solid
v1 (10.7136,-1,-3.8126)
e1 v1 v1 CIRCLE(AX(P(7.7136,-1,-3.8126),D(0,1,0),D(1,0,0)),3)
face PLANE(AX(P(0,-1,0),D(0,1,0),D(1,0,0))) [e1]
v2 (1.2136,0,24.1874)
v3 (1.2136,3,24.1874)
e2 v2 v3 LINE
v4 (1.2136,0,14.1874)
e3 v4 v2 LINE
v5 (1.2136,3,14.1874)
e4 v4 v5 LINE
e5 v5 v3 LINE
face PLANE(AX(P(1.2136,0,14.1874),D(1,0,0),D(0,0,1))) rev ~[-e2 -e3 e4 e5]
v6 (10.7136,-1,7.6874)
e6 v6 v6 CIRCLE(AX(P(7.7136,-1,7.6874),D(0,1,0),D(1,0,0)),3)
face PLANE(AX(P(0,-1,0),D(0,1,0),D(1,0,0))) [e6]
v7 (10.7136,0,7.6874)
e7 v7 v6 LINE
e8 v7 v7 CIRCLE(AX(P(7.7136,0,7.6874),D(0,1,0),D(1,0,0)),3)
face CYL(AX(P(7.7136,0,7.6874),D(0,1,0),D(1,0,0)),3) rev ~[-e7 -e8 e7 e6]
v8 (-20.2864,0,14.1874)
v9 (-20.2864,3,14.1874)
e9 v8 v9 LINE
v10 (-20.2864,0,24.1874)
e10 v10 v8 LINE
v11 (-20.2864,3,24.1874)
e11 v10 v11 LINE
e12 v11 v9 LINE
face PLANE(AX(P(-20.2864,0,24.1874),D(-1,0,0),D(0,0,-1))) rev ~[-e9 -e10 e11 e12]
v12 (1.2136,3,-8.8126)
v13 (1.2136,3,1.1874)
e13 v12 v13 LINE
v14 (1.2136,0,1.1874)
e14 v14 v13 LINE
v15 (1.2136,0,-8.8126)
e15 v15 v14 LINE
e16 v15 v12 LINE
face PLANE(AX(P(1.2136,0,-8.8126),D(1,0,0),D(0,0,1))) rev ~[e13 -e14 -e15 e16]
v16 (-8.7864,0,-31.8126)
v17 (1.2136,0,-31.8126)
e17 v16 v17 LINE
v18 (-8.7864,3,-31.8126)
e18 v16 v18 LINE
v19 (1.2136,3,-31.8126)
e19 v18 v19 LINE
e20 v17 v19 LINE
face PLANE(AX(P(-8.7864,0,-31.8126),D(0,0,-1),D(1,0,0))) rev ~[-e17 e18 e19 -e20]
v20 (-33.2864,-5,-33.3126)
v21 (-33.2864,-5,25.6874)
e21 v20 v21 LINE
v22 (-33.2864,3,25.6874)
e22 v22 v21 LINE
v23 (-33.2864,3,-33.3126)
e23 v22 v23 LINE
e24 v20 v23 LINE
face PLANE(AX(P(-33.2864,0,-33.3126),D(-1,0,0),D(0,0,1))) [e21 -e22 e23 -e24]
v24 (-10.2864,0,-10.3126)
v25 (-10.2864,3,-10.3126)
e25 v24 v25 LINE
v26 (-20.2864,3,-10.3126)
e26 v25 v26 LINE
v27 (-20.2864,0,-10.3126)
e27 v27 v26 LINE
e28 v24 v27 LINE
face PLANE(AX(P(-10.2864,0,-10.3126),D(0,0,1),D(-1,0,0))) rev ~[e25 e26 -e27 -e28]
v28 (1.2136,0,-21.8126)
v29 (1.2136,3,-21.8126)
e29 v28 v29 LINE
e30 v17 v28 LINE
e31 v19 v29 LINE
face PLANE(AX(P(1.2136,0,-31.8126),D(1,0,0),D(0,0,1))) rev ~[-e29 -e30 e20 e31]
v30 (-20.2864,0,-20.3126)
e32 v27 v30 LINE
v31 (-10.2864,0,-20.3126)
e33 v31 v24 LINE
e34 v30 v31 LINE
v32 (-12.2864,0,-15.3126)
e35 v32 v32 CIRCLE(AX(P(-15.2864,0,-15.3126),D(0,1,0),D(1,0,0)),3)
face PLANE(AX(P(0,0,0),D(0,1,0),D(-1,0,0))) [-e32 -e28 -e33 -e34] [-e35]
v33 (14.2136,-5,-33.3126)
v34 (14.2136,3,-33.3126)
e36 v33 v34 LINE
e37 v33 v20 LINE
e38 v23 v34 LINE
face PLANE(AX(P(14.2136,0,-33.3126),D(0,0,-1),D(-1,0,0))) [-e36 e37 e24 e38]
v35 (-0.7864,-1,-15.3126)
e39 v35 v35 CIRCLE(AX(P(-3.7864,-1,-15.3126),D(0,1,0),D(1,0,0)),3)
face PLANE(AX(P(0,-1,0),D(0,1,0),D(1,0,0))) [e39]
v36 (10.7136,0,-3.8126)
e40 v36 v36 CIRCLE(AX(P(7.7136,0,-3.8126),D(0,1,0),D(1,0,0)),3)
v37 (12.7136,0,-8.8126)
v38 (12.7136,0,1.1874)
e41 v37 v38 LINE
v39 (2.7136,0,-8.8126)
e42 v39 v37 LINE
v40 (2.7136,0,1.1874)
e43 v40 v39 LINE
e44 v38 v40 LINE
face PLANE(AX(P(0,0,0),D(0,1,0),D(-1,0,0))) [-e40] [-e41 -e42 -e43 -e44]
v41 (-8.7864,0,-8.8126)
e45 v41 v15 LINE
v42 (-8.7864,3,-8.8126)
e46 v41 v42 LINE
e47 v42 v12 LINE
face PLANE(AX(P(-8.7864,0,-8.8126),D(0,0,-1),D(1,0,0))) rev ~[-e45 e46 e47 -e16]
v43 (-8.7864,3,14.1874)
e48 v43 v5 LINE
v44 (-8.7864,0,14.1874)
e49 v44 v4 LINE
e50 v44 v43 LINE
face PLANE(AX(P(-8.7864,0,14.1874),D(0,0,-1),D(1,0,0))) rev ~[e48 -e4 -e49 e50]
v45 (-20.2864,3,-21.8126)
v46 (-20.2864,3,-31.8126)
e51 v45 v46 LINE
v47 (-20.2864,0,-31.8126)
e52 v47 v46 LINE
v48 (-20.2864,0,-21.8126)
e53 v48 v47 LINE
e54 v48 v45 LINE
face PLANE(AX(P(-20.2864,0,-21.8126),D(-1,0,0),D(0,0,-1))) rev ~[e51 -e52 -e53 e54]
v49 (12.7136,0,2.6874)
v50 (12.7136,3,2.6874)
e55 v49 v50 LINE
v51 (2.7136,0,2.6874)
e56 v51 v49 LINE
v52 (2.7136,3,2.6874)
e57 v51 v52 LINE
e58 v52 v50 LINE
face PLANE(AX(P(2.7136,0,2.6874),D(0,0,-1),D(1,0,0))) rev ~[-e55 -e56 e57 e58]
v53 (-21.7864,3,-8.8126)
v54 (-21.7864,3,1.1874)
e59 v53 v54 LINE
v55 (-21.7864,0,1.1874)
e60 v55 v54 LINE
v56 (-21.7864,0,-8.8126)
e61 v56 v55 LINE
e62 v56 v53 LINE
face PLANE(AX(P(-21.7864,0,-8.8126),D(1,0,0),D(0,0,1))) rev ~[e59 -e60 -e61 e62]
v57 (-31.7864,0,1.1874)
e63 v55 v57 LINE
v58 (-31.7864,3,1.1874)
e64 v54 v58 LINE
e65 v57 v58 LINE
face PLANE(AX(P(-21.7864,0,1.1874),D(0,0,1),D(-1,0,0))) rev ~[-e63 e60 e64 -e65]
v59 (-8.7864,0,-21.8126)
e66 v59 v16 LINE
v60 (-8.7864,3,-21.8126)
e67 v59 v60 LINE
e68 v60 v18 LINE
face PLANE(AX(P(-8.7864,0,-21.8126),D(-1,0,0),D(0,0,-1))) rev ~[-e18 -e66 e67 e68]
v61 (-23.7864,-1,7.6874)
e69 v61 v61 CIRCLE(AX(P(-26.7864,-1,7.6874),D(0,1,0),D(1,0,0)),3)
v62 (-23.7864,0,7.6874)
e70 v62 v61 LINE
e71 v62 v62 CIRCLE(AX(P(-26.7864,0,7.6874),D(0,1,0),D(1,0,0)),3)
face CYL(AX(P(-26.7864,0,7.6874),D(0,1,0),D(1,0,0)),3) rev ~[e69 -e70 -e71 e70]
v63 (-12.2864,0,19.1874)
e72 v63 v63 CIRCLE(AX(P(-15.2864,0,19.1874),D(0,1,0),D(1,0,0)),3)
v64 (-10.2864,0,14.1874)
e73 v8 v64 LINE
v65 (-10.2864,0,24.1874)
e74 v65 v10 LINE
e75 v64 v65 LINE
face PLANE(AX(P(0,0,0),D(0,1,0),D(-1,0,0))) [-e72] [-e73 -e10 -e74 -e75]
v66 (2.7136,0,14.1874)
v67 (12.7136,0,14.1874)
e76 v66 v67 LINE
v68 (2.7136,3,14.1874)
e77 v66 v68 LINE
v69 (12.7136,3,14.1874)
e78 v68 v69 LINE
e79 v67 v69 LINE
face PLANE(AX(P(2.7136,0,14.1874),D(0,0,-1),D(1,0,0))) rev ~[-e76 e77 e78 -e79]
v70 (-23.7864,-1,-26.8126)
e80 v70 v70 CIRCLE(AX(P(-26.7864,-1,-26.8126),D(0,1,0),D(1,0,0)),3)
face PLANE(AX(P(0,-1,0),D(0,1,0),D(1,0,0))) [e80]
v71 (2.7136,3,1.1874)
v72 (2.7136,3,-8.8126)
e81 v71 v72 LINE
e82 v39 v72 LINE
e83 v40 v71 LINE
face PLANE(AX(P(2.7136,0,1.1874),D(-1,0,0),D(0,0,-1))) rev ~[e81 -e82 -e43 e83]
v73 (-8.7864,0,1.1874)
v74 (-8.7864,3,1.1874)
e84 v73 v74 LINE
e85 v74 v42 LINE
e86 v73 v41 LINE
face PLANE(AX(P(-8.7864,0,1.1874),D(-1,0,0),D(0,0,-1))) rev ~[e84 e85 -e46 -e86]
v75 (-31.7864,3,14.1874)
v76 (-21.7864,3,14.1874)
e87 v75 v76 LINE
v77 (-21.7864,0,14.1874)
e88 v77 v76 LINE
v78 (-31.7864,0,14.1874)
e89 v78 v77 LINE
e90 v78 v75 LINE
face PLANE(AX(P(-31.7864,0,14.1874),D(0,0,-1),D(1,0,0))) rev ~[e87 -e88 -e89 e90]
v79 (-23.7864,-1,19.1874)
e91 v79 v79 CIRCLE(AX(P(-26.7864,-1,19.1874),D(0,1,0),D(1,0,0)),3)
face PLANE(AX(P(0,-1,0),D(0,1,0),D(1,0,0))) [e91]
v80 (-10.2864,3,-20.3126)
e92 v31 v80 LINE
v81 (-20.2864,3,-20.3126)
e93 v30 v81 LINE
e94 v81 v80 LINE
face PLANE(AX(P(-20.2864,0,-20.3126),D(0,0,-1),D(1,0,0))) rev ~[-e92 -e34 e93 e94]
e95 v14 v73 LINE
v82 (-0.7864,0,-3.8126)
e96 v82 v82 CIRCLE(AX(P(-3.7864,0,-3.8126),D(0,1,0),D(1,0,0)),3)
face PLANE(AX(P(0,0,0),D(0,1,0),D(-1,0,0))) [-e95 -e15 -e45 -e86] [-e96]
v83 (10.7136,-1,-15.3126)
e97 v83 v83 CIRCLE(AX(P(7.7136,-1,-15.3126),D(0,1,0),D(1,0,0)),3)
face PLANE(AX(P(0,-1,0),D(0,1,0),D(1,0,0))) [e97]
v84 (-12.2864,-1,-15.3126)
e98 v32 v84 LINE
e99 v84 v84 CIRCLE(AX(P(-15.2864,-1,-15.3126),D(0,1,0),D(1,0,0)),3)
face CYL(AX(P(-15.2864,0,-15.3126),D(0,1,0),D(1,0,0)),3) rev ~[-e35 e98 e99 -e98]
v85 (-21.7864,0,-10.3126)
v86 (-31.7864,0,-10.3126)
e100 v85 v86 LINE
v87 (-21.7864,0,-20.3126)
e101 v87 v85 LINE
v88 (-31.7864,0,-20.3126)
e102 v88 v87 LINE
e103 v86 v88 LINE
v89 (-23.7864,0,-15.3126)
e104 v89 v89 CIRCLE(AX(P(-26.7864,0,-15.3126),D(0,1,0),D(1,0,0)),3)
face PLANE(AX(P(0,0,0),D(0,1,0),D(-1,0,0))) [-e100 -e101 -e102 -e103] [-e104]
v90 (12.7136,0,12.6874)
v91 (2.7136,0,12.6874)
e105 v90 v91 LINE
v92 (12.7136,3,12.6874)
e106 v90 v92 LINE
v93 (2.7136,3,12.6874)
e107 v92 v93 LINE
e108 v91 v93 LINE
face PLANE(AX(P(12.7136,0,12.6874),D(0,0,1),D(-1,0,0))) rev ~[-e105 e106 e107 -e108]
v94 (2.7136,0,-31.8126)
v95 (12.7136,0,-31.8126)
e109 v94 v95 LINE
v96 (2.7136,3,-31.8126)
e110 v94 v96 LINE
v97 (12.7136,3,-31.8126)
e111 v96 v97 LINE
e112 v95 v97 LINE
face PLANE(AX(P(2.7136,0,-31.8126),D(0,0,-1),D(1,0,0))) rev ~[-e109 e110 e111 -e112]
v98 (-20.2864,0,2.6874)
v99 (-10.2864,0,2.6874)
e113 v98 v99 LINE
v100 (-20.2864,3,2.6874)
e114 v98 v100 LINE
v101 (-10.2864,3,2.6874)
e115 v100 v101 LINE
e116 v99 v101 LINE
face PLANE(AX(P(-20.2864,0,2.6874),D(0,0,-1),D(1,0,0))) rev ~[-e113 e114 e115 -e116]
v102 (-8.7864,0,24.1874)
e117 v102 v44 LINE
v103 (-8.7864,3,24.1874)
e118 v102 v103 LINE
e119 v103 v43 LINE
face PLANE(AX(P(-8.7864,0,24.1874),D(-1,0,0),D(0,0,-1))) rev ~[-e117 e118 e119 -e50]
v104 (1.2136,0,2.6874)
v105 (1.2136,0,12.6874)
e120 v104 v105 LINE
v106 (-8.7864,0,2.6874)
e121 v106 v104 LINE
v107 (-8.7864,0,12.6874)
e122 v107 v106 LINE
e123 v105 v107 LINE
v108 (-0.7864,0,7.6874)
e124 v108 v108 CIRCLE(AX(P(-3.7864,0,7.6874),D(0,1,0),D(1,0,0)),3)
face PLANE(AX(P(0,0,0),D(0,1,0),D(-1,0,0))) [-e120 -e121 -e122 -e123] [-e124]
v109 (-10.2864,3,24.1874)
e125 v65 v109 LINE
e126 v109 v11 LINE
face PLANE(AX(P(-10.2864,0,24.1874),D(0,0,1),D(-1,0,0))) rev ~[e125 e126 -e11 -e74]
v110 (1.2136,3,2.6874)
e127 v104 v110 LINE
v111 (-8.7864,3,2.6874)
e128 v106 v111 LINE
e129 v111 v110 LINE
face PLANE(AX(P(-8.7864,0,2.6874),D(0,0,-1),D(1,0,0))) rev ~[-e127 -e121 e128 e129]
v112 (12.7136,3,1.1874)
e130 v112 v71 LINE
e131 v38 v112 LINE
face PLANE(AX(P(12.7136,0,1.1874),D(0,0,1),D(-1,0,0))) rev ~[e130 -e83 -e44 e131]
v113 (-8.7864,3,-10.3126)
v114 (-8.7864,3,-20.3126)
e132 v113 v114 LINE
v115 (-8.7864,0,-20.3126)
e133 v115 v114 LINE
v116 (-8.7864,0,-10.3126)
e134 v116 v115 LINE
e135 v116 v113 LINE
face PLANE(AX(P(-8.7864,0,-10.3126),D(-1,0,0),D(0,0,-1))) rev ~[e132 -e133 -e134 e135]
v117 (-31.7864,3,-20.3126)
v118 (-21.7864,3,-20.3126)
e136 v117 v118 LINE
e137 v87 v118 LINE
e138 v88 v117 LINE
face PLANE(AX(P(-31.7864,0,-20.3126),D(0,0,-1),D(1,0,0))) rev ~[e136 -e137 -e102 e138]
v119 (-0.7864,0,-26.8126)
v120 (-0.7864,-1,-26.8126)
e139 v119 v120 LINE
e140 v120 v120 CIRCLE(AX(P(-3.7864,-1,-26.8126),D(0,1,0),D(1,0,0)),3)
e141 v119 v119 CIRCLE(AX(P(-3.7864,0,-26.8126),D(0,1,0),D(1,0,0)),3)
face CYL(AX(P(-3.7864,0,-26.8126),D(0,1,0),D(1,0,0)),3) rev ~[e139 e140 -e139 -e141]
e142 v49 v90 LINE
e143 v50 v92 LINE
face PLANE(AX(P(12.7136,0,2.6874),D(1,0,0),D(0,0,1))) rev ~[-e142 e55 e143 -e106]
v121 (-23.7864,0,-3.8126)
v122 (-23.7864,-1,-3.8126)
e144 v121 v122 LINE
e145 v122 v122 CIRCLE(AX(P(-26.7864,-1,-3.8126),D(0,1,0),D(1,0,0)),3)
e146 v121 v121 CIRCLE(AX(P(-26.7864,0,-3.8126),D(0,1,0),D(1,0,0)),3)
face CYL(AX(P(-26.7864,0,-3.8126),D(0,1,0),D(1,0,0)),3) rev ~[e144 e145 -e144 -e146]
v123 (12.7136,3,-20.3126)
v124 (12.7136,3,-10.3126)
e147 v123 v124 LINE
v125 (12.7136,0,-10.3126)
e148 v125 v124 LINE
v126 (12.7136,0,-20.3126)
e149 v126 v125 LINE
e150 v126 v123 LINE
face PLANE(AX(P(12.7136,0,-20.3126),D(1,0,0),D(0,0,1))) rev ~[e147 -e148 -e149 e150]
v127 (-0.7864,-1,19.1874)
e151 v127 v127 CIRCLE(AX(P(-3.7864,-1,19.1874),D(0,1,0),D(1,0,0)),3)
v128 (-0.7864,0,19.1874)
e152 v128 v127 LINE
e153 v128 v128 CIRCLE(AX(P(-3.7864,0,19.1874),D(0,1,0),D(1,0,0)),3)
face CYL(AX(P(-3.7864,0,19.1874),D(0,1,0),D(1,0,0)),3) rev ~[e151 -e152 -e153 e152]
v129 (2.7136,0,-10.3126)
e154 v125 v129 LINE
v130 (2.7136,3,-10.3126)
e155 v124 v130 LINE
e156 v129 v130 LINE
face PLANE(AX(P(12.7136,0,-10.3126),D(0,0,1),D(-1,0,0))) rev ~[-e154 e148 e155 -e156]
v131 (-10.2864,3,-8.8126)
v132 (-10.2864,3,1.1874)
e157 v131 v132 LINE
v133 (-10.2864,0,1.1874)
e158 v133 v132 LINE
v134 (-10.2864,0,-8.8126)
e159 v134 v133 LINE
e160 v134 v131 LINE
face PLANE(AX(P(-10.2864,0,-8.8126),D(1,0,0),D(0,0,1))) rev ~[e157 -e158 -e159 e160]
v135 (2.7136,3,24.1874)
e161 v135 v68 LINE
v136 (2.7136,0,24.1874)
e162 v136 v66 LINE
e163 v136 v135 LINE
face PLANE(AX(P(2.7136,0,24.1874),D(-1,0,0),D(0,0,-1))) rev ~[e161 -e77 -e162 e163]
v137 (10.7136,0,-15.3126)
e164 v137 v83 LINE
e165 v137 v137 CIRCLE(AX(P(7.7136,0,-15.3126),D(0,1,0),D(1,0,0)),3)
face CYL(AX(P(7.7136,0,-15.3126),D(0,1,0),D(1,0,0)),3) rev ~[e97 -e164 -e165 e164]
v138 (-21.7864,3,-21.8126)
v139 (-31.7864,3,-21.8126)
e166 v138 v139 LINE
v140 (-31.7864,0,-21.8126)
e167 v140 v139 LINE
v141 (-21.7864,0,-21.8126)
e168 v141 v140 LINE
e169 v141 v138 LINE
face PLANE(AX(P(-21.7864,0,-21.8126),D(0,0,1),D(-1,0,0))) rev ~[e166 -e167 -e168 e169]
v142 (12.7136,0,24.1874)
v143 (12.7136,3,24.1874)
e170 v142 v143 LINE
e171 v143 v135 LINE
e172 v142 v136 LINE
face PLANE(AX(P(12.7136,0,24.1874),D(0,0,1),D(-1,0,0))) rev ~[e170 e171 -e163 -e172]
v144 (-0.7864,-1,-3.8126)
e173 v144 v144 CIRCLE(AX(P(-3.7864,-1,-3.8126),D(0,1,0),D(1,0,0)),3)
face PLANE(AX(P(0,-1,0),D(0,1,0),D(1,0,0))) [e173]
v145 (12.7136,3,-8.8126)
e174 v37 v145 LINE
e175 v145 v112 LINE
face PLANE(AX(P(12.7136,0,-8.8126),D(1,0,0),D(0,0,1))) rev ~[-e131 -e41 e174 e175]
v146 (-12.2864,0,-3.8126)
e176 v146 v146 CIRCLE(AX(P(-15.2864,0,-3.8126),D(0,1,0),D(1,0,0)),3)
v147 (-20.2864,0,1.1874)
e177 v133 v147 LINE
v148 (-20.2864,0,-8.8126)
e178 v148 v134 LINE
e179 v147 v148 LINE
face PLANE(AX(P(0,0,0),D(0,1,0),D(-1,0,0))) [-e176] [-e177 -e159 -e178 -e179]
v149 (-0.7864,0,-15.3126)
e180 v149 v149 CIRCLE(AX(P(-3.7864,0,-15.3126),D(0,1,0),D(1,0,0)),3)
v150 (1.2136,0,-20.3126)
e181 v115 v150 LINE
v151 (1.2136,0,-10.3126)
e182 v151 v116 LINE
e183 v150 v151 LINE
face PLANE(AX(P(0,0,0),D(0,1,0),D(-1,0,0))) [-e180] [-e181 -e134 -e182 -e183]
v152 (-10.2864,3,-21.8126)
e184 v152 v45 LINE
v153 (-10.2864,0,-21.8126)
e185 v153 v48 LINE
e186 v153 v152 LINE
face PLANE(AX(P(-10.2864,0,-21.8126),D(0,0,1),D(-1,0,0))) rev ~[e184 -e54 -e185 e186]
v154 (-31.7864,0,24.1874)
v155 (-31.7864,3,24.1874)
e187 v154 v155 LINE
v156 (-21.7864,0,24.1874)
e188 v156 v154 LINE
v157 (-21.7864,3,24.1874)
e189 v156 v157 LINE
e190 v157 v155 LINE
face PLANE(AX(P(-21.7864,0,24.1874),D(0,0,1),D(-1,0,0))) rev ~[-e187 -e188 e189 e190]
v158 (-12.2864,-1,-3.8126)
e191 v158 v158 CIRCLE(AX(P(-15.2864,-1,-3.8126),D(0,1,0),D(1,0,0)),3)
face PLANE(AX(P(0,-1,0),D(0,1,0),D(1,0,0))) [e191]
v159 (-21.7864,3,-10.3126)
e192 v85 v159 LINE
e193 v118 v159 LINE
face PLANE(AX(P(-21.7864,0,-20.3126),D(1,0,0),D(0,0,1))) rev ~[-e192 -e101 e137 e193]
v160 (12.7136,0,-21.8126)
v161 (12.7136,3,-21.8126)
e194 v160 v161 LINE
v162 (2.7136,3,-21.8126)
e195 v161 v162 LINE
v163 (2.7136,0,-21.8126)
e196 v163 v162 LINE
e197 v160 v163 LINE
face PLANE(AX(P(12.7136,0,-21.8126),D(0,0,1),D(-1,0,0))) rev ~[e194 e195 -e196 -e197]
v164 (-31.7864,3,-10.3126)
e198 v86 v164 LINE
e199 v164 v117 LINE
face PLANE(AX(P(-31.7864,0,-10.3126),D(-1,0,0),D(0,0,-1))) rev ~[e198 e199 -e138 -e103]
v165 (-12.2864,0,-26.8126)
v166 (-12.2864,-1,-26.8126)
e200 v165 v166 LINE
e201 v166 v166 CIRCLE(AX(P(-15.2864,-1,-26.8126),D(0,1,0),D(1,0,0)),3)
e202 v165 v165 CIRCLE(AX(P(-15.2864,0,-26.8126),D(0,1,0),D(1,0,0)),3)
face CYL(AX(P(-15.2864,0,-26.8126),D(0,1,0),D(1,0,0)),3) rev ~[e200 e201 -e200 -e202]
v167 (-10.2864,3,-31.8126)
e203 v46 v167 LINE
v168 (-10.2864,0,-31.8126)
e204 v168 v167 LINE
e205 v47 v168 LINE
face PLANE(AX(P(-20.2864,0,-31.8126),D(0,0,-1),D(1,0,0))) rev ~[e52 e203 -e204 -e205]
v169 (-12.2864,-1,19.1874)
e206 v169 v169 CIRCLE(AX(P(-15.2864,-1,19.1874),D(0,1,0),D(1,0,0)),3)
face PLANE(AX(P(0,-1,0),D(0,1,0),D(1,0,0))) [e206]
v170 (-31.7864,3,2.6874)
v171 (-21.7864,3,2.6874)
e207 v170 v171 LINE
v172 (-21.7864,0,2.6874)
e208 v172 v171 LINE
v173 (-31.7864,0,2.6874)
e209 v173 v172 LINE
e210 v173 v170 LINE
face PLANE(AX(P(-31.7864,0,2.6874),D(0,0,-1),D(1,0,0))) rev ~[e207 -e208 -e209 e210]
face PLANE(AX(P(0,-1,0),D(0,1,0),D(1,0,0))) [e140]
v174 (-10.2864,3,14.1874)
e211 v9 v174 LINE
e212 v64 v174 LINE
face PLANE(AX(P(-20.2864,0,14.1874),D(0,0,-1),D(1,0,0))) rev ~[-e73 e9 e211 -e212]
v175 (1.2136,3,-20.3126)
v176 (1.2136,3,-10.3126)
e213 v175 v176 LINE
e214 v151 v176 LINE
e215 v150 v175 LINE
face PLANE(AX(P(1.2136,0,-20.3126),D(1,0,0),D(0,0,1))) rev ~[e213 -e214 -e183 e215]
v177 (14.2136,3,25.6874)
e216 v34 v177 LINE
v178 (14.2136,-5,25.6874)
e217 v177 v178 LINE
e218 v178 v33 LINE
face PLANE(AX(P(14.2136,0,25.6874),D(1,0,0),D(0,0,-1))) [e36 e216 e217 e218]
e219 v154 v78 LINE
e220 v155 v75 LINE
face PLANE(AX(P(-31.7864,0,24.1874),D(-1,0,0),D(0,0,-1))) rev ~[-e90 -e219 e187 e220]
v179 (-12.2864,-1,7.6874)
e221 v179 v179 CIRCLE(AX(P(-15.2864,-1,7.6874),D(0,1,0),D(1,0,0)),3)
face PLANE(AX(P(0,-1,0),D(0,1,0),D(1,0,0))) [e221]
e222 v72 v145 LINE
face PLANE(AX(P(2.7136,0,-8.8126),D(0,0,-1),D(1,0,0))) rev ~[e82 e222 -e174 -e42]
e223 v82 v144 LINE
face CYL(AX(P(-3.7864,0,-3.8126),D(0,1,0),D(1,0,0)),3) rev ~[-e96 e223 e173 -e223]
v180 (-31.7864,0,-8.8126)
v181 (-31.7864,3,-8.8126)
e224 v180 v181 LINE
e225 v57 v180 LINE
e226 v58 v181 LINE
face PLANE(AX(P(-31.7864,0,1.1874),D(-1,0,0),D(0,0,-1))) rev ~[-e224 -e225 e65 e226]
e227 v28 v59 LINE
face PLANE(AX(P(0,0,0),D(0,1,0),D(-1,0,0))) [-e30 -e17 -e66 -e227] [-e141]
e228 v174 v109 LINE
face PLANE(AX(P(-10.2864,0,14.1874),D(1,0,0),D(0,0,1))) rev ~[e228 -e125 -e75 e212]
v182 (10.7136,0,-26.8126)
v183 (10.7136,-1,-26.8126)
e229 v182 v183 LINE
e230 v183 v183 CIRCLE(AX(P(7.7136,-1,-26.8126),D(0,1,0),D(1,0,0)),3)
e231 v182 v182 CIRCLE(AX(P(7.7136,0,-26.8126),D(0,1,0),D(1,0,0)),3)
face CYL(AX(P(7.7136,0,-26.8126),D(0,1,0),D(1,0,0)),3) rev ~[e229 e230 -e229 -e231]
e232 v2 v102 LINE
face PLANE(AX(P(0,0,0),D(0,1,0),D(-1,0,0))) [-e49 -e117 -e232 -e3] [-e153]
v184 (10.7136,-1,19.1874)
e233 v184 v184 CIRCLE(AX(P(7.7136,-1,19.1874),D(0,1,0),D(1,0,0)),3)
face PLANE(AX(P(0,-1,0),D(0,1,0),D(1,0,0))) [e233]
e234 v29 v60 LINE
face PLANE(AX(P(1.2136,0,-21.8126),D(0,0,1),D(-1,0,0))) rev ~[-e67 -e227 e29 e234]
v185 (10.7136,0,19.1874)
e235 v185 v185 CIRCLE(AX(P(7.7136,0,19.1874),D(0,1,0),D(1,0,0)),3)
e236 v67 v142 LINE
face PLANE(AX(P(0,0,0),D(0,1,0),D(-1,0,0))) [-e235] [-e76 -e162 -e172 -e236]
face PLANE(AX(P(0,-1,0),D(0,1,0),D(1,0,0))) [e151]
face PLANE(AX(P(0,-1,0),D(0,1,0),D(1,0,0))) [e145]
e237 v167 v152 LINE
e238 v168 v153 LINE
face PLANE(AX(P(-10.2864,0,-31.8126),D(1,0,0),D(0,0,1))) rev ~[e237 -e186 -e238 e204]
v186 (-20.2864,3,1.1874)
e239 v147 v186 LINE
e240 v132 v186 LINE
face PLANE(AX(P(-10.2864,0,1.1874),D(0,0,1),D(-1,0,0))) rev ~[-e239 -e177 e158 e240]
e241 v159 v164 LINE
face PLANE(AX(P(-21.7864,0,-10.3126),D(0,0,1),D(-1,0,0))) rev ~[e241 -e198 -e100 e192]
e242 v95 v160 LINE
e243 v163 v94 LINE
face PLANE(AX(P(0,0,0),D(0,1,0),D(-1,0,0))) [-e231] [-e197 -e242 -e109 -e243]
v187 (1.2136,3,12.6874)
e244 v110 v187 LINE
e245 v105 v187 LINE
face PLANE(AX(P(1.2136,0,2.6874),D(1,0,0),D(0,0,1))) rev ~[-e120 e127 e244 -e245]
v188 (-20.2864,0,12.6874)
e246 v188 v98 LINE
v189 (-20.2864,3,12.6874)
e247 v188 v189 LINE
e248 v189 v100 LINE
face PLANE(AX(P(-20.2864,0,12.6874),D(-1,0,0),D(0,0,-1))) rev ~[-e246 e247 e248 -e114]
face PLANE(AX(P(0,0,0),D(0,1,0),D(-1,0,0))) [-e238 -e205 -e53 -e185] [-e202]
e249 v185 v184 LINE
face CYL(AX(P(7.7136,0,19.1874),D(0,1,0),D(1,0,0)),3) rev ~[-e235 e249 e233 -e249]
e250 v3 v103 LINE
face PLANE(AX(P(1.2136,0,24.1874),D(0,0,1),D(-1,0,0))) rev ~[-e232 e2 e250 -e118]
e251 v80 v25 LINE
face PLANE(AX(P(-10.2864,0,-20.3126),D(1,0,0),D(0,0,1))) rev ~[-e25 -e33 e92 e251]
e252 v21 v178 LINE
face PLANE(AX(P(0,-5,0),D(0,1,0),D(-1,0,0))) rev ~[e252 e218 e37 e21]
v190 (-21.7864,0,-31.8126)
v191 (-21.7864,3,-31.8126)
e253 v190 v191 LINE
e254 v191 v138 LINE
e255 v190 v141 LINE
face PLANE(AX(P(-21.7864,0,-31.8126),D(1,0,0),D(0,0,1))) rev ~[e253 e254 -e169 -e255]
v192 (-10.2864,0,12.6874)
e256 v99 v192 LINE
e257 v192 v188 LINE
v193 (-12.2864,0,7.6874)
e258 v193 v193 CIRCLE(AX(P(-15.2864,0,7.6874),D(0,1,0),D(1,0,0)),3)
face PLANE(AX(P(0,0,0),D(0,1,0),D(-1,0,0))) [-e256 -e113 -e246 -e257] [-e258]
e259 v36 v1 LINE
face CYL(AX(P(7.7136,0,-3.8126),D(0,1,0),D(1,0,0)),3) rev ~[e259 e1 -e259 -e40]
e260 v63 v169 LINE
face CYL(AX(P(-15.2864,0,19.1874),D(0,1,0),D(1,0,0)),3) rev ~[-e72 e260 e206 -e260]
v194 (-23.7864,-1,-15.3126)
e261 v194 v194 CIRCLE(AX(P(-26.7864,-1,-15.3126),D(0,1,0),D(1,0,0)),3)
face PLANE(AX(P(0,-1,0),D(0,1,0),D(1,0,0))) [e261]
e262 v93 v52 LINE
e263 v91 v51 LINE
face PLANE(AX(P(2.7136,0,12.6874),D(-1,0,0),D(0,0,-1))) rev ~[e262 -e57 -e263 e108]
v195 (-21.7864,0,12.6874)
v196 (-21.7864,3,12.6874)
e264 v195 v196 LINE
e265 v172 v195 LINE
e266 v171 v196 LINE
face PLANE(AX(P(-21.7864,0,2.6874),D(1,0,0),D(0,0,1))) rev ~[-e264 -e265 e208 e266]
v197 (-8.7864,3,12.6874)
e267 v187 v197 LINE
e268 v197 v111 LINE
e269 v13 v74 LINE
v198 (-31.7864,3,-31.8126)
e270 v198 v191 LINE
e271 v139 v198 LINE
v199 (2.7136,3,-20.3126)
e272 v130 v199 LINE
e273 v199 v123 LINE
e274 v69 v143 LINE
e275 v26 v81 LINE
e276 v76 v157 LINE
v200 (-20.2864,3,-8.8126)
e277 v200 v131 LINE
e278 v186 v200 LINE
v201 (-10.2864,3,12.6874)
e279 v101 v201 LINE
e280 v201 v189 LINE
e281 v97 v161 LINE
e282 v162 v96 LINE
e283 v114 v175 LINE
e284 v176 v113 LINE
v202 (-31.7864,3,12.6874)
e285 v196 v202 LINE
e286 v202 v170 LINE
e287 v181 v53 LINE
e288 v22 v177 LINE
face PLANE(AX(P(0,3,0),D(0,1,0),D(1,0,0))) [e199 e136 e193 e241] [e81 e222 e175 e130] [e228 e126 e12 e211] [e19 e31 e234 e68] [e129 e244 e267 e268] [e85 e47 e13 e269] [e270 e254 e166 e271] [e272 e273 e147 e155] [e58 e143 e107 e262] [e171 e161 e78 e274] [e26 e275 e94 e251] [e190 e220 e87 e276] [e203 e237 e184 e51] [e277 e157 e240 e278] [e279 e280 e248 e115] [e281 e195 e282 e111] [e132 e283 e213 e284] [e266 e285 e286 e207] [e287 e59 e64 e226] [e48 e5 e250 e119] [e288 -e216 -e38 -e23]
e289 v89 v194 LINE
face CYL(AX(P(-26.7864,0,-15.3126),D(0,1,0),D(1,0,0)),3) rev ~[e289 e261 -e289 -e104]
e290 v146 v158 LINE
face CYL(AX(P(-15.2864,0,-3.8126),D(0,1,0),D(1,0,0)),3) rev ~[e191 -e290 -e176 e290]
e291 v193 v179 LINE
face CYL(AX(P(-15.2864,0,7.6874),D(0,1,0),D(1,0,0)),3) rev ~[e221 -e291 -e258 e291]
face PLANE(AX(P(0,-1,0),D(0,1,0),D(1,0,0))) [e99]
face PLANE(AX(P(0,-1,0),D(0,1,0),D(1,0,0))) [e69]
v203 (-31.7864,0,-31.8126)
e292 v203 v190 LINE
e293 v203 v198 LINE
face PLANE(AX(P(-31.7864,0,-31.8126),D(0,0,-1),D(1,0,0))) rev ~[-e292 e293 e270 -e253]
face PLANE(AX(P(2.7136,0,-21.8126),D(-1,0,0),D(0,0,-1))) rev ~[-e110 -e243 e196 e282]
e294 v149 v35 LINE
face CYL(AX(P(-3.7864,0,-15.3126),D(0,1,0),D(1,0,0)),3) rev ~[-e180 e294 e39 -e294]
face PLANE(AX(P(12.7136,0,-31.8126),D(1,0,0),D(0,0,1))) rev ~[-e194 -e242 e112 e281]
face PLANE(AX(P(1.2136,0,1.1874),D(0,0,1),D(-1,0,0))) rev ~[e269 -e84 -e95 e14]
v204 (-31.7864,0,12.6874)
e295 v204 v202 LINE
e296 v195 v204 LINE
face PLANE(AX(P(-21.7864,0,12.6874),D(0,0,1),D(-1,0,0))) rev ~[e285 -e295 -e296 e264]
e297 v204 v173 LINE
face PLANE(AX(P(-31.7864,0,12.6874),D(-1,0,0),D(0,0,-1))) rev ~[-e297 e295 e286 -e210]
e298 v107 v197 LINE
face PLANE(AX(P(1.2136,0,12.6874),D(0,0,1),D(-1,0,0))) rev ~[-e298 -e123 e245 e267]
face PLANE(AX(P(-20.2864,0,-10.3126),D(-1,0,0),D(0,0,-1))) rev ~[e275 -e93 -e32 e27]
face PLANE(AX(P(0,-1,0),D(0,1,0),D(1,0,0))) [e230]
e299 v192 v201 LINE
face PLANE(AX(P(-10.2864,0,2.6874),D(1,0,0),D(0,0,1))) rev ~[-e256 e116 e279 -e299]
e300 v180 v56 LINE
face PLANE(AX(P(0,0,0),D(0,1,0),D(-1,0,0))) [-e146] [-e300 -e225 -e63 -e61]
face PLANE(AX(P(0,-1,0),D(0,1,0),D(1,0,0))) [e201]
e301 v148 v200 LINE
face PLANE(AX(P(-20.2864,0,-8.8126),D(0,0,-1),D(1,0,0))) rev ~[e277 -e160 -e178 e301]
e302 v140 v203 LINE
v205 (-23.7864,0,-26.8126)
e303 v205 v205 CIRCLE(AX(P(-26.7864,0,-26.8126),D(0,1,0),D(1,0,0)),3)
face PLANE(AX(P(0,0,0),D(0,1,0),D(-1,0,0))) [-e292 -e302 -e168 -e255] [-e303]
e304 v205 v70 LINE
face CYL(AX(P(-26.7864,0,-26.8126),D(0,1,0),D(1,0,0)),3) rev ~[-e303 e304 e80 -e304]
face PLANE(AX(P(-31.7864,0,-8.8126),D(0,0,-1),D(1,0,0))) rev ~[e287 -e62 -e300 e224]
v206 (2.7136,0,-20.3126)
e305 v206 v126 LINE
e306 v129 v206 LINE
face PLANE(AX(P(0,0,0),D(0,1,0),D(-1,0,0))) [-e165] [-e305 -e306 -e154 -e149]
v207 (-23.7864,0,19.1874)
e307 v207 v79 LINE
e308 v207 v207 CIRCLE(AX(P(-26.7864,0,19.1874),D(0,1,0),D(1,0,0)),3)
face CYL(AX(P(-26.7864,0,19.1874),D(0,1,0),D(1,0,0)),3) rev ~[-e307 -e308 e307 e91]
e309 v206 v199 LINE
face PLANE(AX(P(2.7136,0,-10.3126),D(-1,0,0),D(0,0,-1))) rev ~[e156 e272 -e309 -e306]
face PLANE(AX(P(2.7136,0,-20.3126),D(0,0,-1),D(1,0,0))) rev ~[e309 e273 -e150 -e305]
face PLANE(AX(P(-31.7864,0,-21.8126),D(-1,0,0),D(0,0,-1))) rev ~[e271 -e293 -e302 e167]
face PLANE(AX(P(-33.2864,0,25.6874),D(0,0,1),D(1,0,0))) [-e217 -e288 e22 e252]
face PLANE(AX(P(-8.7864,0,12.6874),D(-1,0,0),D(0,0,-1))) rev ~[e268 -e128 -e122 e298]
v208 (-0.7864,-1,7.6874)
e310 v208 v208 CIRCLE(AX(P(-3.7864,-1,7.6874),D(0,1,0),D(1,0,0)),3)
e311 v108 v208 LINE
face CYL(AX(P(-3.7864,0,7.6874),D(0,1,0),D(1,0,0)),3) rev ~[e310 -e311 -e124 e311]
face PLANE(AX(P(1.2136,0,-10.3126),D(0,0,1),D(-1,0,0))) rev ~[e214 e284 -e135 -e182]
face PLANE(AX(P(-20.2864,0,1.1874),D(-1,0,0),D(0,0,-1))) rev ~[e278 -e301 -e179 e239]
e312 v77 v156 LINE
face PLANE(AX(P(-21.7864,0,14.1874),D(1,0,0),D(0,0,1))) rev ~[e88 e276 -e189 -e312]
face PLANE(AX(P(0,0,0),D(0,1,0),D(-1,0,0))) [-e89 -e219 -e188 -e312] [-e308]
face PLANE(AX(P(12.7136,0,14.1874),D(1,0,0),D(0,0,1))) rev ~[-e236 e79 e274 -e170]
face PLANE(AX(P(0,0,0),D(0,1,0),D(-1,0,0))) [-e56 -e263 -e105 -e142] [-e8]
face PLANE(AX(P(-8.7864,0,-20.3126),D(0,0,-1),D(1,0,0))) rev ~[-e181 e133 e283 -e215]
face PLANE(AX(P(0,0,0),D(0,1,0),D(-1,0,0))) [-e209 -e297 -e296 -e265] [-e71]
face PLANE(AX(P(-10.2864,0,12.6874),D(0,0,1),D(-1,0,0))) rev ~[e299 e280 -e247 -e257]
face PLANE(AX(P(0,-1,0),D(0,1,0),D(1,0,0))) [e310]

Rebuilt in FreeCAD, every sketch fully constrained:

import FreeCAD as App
import Part
import Sketcher


def add_polygon(sketch, points):
    """Adds a closed chain of lines whose ends are joined by coincident constraints."""
    first, n = sketch.GeometryCount, len(points)
    for a, b in zip(points, points[1:] + points[:1]):
        sketch.addGeometry(Part.LineSegment(App.Vector(*a, 0), App.Vector(*b, 0)), False)
    for i in range(n):
        sketch.addConstraint(Sketcher.Constraint("Coincident", first + i, 2, first + (i + 1) % n, 1))

doc = App.newDocument("Part")
body = doc.addObject("PartDesign::Body", "Body")

# Sketch on XZ plane
sketch1 = doc.addObject("Sketcher::SketchObject", "Sketch")
body.addObject(sketch1)
sketch1.AttachmentSupport = (doc.XZ_Plane, [""])
sketch1.MapMode = "FlatFace"
add_polygon(sketch1, [(14, 26), (14, -33), (-33, -33), (-33, 26)])  # lines 0-3
sketch1.addConstraint(Sketcher.Constraint("Vertical", 0))
sketch1.addConstraint(Sketcher.Constraint("Horizontal", 1))
sketch1.addConstraint(Sketcher.Constraint("Vertical", 2))
sketch1.addConstraint(Sketcher.Constraint("Horizontal", 3))
sketch1.addConstraint(Sketcher.Constraint("DistanceY", 0, 2, 0, 1, 59.0))
sketch1.addConstraint(Sketcher.Constraint("DistanceX", 1, 2, 1, 1, 47.5))
sketch1.addConstraint(Sketcher.Constraint("DistanceX", -1, 1, 0, 2, 14.2136))
sketch1.addConstraint(Sketcher.Constraint("DistanceY", 0, 2, -1, 1, 33.3126))
pad1 = doc.addObject("PartDesign::Pad", "Pad")
body.addObject(pad1)
pad1.Profile = sketch1
pad1.Length = 5

# Sketch on XZ plane
sketch2 = doc.addObject("Sketcher::SketchObject", "Sketch001")
body.addObject(sketch2)
sketch2.AttachmentSupport = (doc.XZ_Plane, [""])
sketch2.MapMode = "FlatFace"
add_polygon(sketch2, [(14, -33), (-33, -33), (-33, 26), (14, 26)])  # lines 0-3
add_polygon(sketch2, [(3, -32), (13, -32), (13, -22), (3, -22)])  # lines 4-7
add_polygon(sketch2, [(-9, -32), (1, -32), (1, -22), (-9, -22)])  # lines 8-11
add_polygon(sketch2, [(-20, -32), (-10, -32), (-10, -22), (-20, -22)])  # lines 12-15
add_polygon(sketch2, [(-32, -32), (-22, -32), (-22, -22), (-32, -22)])  # lines 16-19
add_polygon(sketch2, [(-20, -20), (-10, -20), (-10, -10), (-20, -10)])  # lines 20-23
add_polygon(sketch2, [(-32, -20), (-22, -20), (-22, -10), (-32, -10)])  # lines 24-27
add_polygon(sketch2, [(3, -20), (13, -20), (13, -10), (3, -10)])  # lines 28-31
add_polygon(sketch2, [(-9, -20), (1, -20), (1, -10), (-9, -10)])  # lines 32-35
add_polygon(sketch2, [(-20, -9), (-10, -9), (-10, 1), (-20, 1)])  # lines 36-39
add_polygon(sketch2, [(-32, -9), (-22, -9), (-22, 1), (-32, 1)])  # lines 40-43
add_polygon(sketch2, [(3, -9), (13, -9), (13, 1), (3, 1)])  # lines 44-47
add_polygon(sketch2, [(-9, -9), (1, -9), (1, 1), (-9, 1)])  # lines 48-51
add_polygon(sketch2, [(-20, 3), (-10, 3), (-10, 13), (-20, 13)])  # lines 52-55
add_polygon(sketch2, [(-32, 3), (-22, 3), (-22, 13), (-32, 13)])  # lines 56-59
add_polygon(sketch2, [(3, 3), (13, 3), (13, 13), (3, 13)])  # lines 60-63
add_polygon(sketch2, [(-9, 3), (1, 3), (1, 13), (-9, 13)])  # lines 64-67
add_polygon(sketch2, [(-20, 14), (-10, 14), (-10, 24), (-20, 24)])  # lines 68-71
add_polygon(sketch2, [(-32, 14), (-22, 14), (-22, 24), (-32, 24)])  # lines 72-75
add_polygon(sketch2, [(3, 14), (13, 14), (13, 24), (3, 24)])  # lines 76-79
add_polygon(sketch2, [(-9, 14), (1, 14), (1, 24), (-9, 24)])  # lines 80-83
sketch2.addConstraint(Sketcher.Constraint("Horizontal", 0))
sketch2.addConstraint(Sketcher.Constraint("Vertical", 1))
sketch2.addConstraint(Sketcher.Constraint("Horizontal", 2))
sketch2.addConstraint(Sketcher.Constraint("Vertical", 3))
sketch2.addConstraint(Sketcher.Constraint("Horizontal", 4))
sketch2.addConstraint(Sketcher.Constraint("Vertical", 5))
sketch2.addConstraint(Sketcher.Constraint("Horizontal", 6))
sketch2.addConstraint(Sketcher.Constraint("Vertical", 7))
sketch2.addConstraint(Sketcher.Constraint("Horizontal", 8))
sketch2.addConstraint(Sketcher.Constraint("Vertical", 9))
sketch2.addConstraint(Sketcher.Constraint("Horizontal", 10))
sketch2.addConstraint(Sketcher.Constraint("Vertical", 11))
sketch2.addConstraint(Sketcher.Constraint("Horizontal", 12))
sketch2.addConstraint(Sketcher.Constraint("Vertical", 13))
sketch2.addConstraint(Sketcher.Constraint("Horizontal", 14))
sketch2.addConstraint(Sketcher.Constraint("Vertical", 15))
sketch2.addConstraint(Sketcher.Constraint("Horizontal", 16))
sketch2.addConstraint(Sketcher.Constraint("Vertical", 17))
sketch2.addConstraint(Sketcher.Constraint("Horizontal", 18))
sketch2.addConstraint(Sketcher.Constraint("Vertical", 19))
sketch2.addConstraint(Sketcher.Constraint("Horizontal", 20))
sketch2.addConstraint(Sketcher.Constraint("Vertical", 21))
sketch2.addConstraint(Sketcher.Constraint("Horizontal", 22))
sketch2.addConstraint(Sketcher.Constraint("Vertical", 23))
sketch2.addConstraint(Sketcher.Constraint("Horizontal", 24))
sketch2.addConstraint(Sketcher.Constraint("Vertical", 25))
sketch2.addConstraint(Sketcher.Constraint("Horizontal", 26))
sketch2.addConstraint(Sketcher.Constraint("Vertical", 27))
sketch2.addConstraint(Sketcher.Constraint("Horizontal", 28))
sketch2.addConstraint(Sketcher.Constraint("Vertical", 29))
sketch2.addConstraint(Sketcher.Constraint("Horizontal", 30))
sketch2.addConstraint(Sketcher.Constraint("Vertical", 31))
sketch2.addConstraint(Sketcher.Constraint("Horizontal", 32))
sketch2.addConstraint(Sketcher.Constraint("Vertical", 33))
sketch2.addConstraint(Sketcher.Constraint("Horizontal", 34))
sketch2.addConstraint(Sketcher.Constraint("Vertical", 35))
sketch2.addConstraint(Sketcher.Constraint("Horizontal", 36))
sketch2.addConstraint(Sketcher.Constraint("Vertical", 37))
sketch2.addConstraint(Sketcher.Constraint("Horizontal", 38))
sketch2.addConstraint(Sketcher.Constraint("Vertical", 39))
sketch2.addConstraint(Sketcher.Constraint("Horizontal", 40))
sketch2.addConstraint(Sketcher.Constraint("Vertical", 41))
sketch2.addConstraint(Sketcher.Constraint("Horizontal", 42))
sketch2.addConstraint(Sketcher.Constraint("Vertical", 43))
sketch2.addConstraint(Sketcher.Constraint("Horizontal", 44))
sketch2.addConstraint(Sketcher.Constraint("Vertical", 45))
sketch2.addConstraint(Sketcher.Constraint("Horizontal", 46))
sketch2.addConstraint(Sketcher.Constraint("Vertical", 47))
sketch2.addConstraint(Sketcher.Constraint("Horizontal", 48))
sketch2.addConstraint(Sketcher.Constraint("Vertical", 49))
sketch2.addConstraint(Sketcher.Constraint("Horizontal", 50))
sketch2.addConstraint(Sketcher.Constraint("Vertical", 51))
sketch2.addConstraint(Sketcher.Constraint("Horizontal", 52))
sketch2.addConstraint(Sketcher.Constraint("Vertical", 53))
sketch2.addConstraint(Sketcher.Constraint("Horizontal", 54))
sketch2.addConstraint(Sketcher.Constraint("Vertical", 55))
sketch2.addConstraint(Sketcher.Constraint("Horizontal", 56))
sketch2.addConstraint(Sketcher.Constraint("Vertical", 57))
sketch2.addConstraint(Sketcher.Constraint("Horizontal", 58))
sketch2.addConstraint(Sketcher.Constraint("Vertical", 59))
sketch2.addConstraint(Sketcher.Constraint("Horizontal", 60))
sketch2.addConstraint(Sketcher.Constraint("Vertical", 61))
sketch2.addConstraint(Sketcher.Constraint("Horizontal", 62))
sketch2.addConstraint(Sketcher.Constraint("Vertical", 63))
sketch2.addConstraint(Sketcher.Constraint("Horizontal", 64))
sketch2.addConstraint(Sketcher.Constraint("Vertical", 65))
sketch2.addConstraint(Sketcher.Constraint("Horizontal", 66))
sketch2.addConstraint(Sketcher.Constraint("Vertical", 67))
sketch2.addConstraint(Sketcher.Constraint("Horizontal", 68))
sketch2.addConstraint(Sketcher.Constraint("Vertical", 69))
sketch2.addConstraint(Sketcher.Constraint("Horizontal", 70))
sketch2.addConstraint(Sketcher.Constraint("Vertical", 71))
sketch2.addConstraint(Sketcher.Constraint("Horizontal", 72))
sketch2.addConstraint(Sketcher.Constraint("Vertical", 73))
sketch2.addConstraint(Sketcher.Constraint("Horizontal", 74))
sketch2.addConstraint(Sketcher.Constraint("Vertical", 75))
sketch2.addConstraint(Sketcher.Constraint("Horizontal", 76))
sketch2.addConstraint(Sketcher.Constraint("Vertical", 77))
sketch2.addConstraint(Sketcher.Constraint("Horizontal", 78))
sketch2.addConstraint(Sketcher.Constraint("Vertical", 79))
sketch2.addConstraint(Sketcher.Constraint("Horizontal", 80))
sketch2.addConstraint(Sketcher.Constraint("Vertical", 81))
sketch2.addConstraint(Sketcher.Constraint("Horizontal", 82))
sketch2.addConstraint(Sketcher.Constraint("Vertical", 83))
sketch2.addConstraint(Sketcher.Constraint("Horizontal", 7, 2, 8, 2))
sketch2.addConstraint(Sketcher.Constraint("Horizontal", 6, 2, 9, 2))
sketch2.addConstraint(Sketcher.Constraint("Horizontal", 11, 2, 12, 2))
sketch2.addConstraint(Sketcher.Constraint("Horizontal", 10, 2, 13, 2))
sketch2.addConstraint(Sketcher.Constraint("Horizontal", 15, 2, 16, 2))
sketch2.addConstraint(Sketcher.Constraint("Horizontal", 14, 2, 17, 2))
sketch2.addConstraint(Sketcher.Constraint("Horizontal", 23, 2, 24, 2))
sketch2.addConstraint(Sketcher.Constraint("Horizontal", 22, 2, 25, 2))
sketch2.addConstraint(Sketcher.Constraint("Horizontal", 27, 2, 28, 2))
sketch2.addConstraint(Sketcher.Constraint("Horizontal", 26, 2, 29, 2))
sketch2.addConstraint(Sketcher.Constraint("Horizontal", 31, 2, 32, 2))
sketch2.addConstraint(Sketcher.Constraint("Horizontal", 30, 2, 33, 2))
sketch2.addConstraint(Sketcher.Constraint("Horizontal", 39, 2, 40, 2))
sketch2.addConstraint(Sketcher.Constraint("Horizontal", 38, 2, 41, 2))
sketch2.addConstraint(Sketcher.Constraint("Horizontal", 43, 2, 44, 2))
sketch2.addConstraint(Sketcher.Constraint("Horizontal", 42, 2, 45, 2))
sketch2.addConstraint(Sketcher.Constraint("Horizontal", 47, 2, 48, 2))
sketch2.addConstraint(Sketcher.Constraint("Horizontal", 46, 2, 49, 2))
sketch2.addConstraint(Sketcher.Constraint("Horizontal", 55, 2, 56, 2))
sketch2.addConstraint(Sketcher.Constraint("Horizontal", 54, 2, 57, 2))
sketch2.addConstraint(Sketcher.Constraint("Horizontal", 59, 2, 60, 2))
sketch2.addConstraint(Sketcher.Constraint("Horizontal", 58, 2, 61, 2))
sketch2.addConstraint(Sketcher.Constraint("Horizontal", 63, 2, 64, 2))
sketch2.addConstraint(Sketcher.Constraint("Horizontal", 62, 2, 65, 2))
sketch2.addConstraint(Sketcher.Constraint("Horizontal", 71, 2, 72, 2))
sketch2.addConstraint(Sketcher.Constraint("Horizontal", 70, 2, 73, 2))
sketch2.addConstraint(Sketcher.Constraint("Horizontal", 75, 2, 76, 2))
sketch2.addConstraint(Sketcher.Constraint("Horizontal", 74, 2, 77, 2))
sketch2.addConstraint(Sketcher.Constraint("Horizontal", 79, 2, 80, 2))
sketch2.addConstraint(Sketcher.Constraint("Horizontal", 78, 2, 81, 2))
sketch2.addConstraint(Sketcher.Constraint("Vertical", 13, 2, 20, 2))
sketch2.addConstraint(Sketcher.Constraint("Vertical", 15, 2, 22, 2))
sketch2.addConstraint(Sketcher.Constraint("Vertical", 17, 2, 24, 2))
sketch2.addConstraint(Sketcher.Constraint("Vertical", 19, 2, 26, 2))
sketch2.addConstraint(Sketcher.Constraint("Vertical", 5, 2, 28, 2))
sketch2.addConstraint(Sketcher.Constraint("Vertical", 7, 2, 30, 2))
sketch2.addConstraint(Sketcher.Constraint("Vertical", 9, 2, 32, 2))
sketch2.addConstraint(Sketcher.Constraint("Vertical", 11, 2, 34, 2))
sketch2.addConstraint(Sketcher.Constraint("Vertical", 21, 2, 36, 2))
sketch2.addConstraint(Sketcher.Constraint("Vertical", 23, 2, 38, 2))
sketch2.addConstraint(Sketcher.Constraint("Vertical", 25, 2, 40, 2))
sketch2.addConstraint(Sketcher.Constraint("Vertical", 27, 2, 42, 2))
sketch2.addConstraint(Sketcher.Constraint("Vertical", 29, 2, 44, 2))
sketch2.addConstraint(Sketcher.Constraint("Vertical", 31, 2, 46, 2))
sketch2.addConstraint(Sketcher.Constraint("Vertical", 33, 2, 48, 2))
sketch2.addConstraint(Sketcher.Constraint("Vertical", 35, 2, 50, 2))
sketch2.addConstraint(Sketcher.Constraint("Vertical", 37, 2, 52, 2))
sketch2.addConstraint(Sketcher.Constraint("Vertical", 39, 2, 54, 2))
sketch2.addConstraint(Sketcher.Constraint("Vertical", 41, 2, 56, 2))
sketch2.addConstraint(Sketcher.Constraint("Vertical", 43, 2, 58, 2))
sketch2.addConstraint(Sketcher.Constraint("Vertical", 45, 2, 60, 2))
sketch2.addConstraint(Sketcher.Constraint("Vertical", 47, 2, 62, 2))
sketch2.addConstraint(Sketcher.Constraint("Vertical", 49, 2, 64, 2))
sketch2.addConstraint(Sketcher.Constraint("Vertical", 51, 2, 66, 2))
sketch2.addConstraint(Sketcher.Constraint("Vertical", 53, 2, 68, 2))
sketch2.addConstraint(Sketcher.Constraint("Vertical", 55, 2, 70, 2))
sketch2.addConstraint(Sketcher.Constraint("Vertical", 57, 2, 72, 2))
sketch2.addConstraint(Sketcher.Constraint("Vertical", 59, 2, 74, 2))
sketch2.addConstraint(Sketcher.Constraint("Vertical", 61, 2, 76, 2))
sketch2.addConstraint(Sketcher.Constraint("Vertical", 63, 2, 78, 2))
sketch2.addConstraint(Sketcher.Constraint("Vertical", 65, 2, 80, 2))
sketch2.addConstraint(Sketcher.Constraint("Vertical", 67, 2, 82, 2))
sketch2.addConstraint(Sketcher.Constraint("Equal", 6, 8))
sketch2.addConstraint(Sketcher.Constraint("Equal", 10, 12))
sketch2.addConstraint(Sketcher.Constraint("Equal", 14, 16))
sketch2.addConstraint(Sketcher.Constraint("Equal", 82, 5))
sketch2.addConstraint(Sketcher.Constraint("Equal", 19, 21))
sketch2.addConstraint(Sketcher.Constraint("Equal", 35, 37))
sketch2.addConstraint(Sketcher.Constraint("Equal", 51, 53))
sketch2.addConstraint(Sketcher.Constraint("Equal", 67, 69))
sketch2.addConstraint(Sketcher.Constraint("DistanceX", 4, 1, 4, 2, 10.0))
sketch2.addConstraint(Sketcher.Constraint("DistanceY", 1, 1, 1, 2, 59.0))
sketch2.addConstraint(Sketcher.Constraint("DistanceX", 0, 2, 0, 1, 47.5))
sketch2.addConstraint(Sketcher.Constraint("DistanceX", 0, 2, -1, 1, 33.2864))
sketch2.addConstraint(Sketcher.Constraint("DistanceY", 0, 2, -1, 1, 33.3126))
sketch2.addConstraint(Sketcher.Constraint("DistanceX", -1, 1, 4, 2, 12.7136))
sketch2.addConstraint(Sketcher.Constraint("DistanceY", 4, 2, -1, 1, 31.8126))
sketch2.addConstraint(Sketcher.Constraint("DistanceX", -1, 1, 8, 2, 1.2136))
sketch2.addConstraint(Sketcher.Constraint("DistanceX", 12, 2, -1, 1, 10.2864))
sketch2.addConstraint(Sketcher.Constraint("DistanceX", 16, 2, -1, 1, 21.7864))
sketch2.addConstraint(Sketcher.Constraint("DistanceY", 20, 2, -1, 1, 20.3126))
sketch2.addConstraint(Sketcher.Constraint("DistanceY", 36, 2, -1, 1, 8.8126))
sketch2.addConstraint(Sketcher.Constraint("DistanceY", -1, 1, 52, 2, 2.6874))
sketch2.addConstraint(Sketcher.Constraint("DistanceY", -1, 1, 68, 2, 14.1874))
pad2 = doc.addObject("PartDesign::Pad", "Pad001")
body.addObject(pad2)
pad2.Profile = sketch2
pad2.Length = 3
pad2.Reversed = True

# Sketch on XZ plane
sketch3 = doc.addObject("Sketcher::SketchObject", "Sketch002")
body.addObject(sketch3)
sketch3.AttachmentSupport = (doc.XZ_Plane, [""])
sketch3.MapMode = "FlatFace"
sketch3.addGeometry(Part.Circle(App.Vector(-26.8, -26.8, 0), App.Vector(0, 0, 1), 3), False)
sketch3.addGeometry(Part.Circle(App.Vector(-15.3, -26.8, 0), App.Vector(0, 0, 1), 3), False)
sketch3.addGeometry(Part.Circle(App.Vector(-3.8, -26.8, 0), App.Vector(0, 0, 1), 3), False)
sketch3.addGeometry(Part.Circle(App.Vector(7.7, -26.8, 0), App.Vector(0, 0, 1), 3), False)
sketch3.addGeometry(Part.Circle(App.Vector(-26.8, -15.3, 0), App.Vector(0, 0, 1), 3), False)
sketch3.addGeometry(Part.Circle(App.Vector(-15.3, -15.3, 0), App.Vector(0, 0, 1), 3), False)
sketch3.addGeometry(Part.Circle(App.Vector(-3.8, -15.3, 0), App.Vector(0, 0, 1), 3), False)
sketch3.addGeometry(Part.Circle(App.Vector(7.7, -15.3, 0), App.Vector(0, 0, 1), 3), False)
sketch3.addGeometry(Part.Circle(App.Vector(-26.8, -3.8, 0), App.Vector(0, 0, 1), 3), False)
sketch3.addGeometry(Part.Circle(App.Vector(-15.3, -3.8, 0), App.Vector(0, 0, 1), 3), False)
sketch3.addGeometry(Part.Circle(App.Vector(-3.8, -3.8, 0), App.Vector(0, 0, 1), 3), False)
sketch3.addGeometry(Part.Circle(App.Vector(7.7, -3.8, 0), App.Vector(0, 0, 1), 3), False)
sketch3.addGeometry(Part.Circle(App.Vector(-26.8, 7.7, 0), App.Vector(0, 0, 1), 3), False)
sketch3.addGeometry(Part.Circle(App.Vector(-15.3, 7.7, 0), App.Vector(0, 0, 1), 3), False)
sketch3.addGeometry(Part.Circle(App.Vector(-3.8, 7.7, 0), App.Vector(0, 0, 1), 3), False)
sketch3.addGeometry(Part.Circle(App.Vector(7.7, 7.7, 0), App.Vector(0, 0, 1), 3), False)
sketch3.addGeometry(Part.Circle(App.Vector(-26.8, 19.2, 0), App.Vector(0, 0, 1), 3), False)
sketch3.addGeometry(Part.Circle(App.Vector(-15.3, 19.2, 0), App.Vector(0, 0, 1), 3), False)
sketch3.addGeometry(Part.Circle(App.Vector(-3.8, 19.2, 0), App.Vector(0, 0, 1), 3), False)
sketch3.addGeometry(Part.Circle(App.Vector(7.7, 19.2, 0), App.Vector(0, 0, 1), 3), False)
sketch3.addConstraint(Sketcher.Constraint("Equal", 0, 1))
sketch3.addConstraint(Sketcher.Constraint("Equal", 1, 2))
sketch3.addConstraint(Sketcher.Constraint("Equal", 2, 3))
sketch3.addConstraint(Sketcher.Constraint("Equal", 3, 4))
sketch3.addConstraint(Sketcher.Constraint("Equal", 4, 5))
sketch3.addConstraint(Sketcher.Constraint("Equal", 5, 6))
sketch3.addConstraint(Sketcher.Constraint("Equal", 6, 7))
sketch3.addConstraint(Sketcher.Constraint("Equal", 7, 8))
sketch3.addConstraint(Sketcher.Constraint("Equal", 8, 9))
sketch3.addConstraint(Sketcher.Constraint("Equal", 9, 10))
sketch3.addConstraint(Sketcher.Constraint("Equal", 10, 11))
sketch3.addConstraint(Sketcher.Constraint("Equal", 11, 12))
sketch3.addConstraint(Sketcher.Constraint("Equal", 12, 13))
sketch3.addConstraint(Sketcher.Constraint("Equal", 13, 14))
sketch3.addConstraint(Sketcher.Constraint("Equal", 14, 15))
sketch3.addConstraint(Sketcher.Constraint("Equal", 15, 16))
sketch3.addConstraint(Sketcher.Constraint("Equal", 16, 17))
sketch3.addConstraint(Sketcher.Constraint("Equal", 17, 18))
sketch3.addConstraint(Sketcher.Constraint("Equal", 18, 19))
sketch3.addConstraint(Sketcher.Constraint("Horizontal", 0, 3, 1, 3))
sketch3.addConstraint(Sketcher.Constraint("Horizontal", 1, 3, 2, 3))
sketch3.addConstraint(Sketcher.Constraint("Horizontal", 2, 3, 3, 3))
sketch3.addConstraint(Sketcher.Constraint("Horizontal", 4, 3, 5, 3))
sketch3.addConstraint(Sketcher.Constraint("Horizontal", 5, 3, 6, 3))
sketch3.addConstraint(Sketcher.Constraint("Horizontal", 6, 3, 7, 3))
sketch3.addConstraint(Sketcher.Constraint("Horizontal", 8, 3, 9, 3))
sketch3.addConstraint(Sketcher.Constraint("Horizontal", 9, 3, 10, 3))
sketch3.addConstraint(Sketcher.Constraint("Horizontal", 10, 3, 11, 3))
sketch3.addConstraint(Sketcher.Constraint("Horizontal", 12, 3, 13, 3))
sketch3.addConstraint(Sketcher.Constraint("Horizontal", 13, 3, 14, 3))
sketch3.addConstraint(Sketcher.Constraint("Horizontal", 14, 3, 15, 3))
sketch3.addConstraint(Sketcher.Constraint("Horizontal", 16, 3, 17, 3))
sketch3.addConstraint(Sketcher.Constraint("Horizontal", 17, 3, 18, 3))
sketch3.addConstraint(Sketcher.Constraint("Horizontal", 18, 3, 19, 3))
sketch3.addConstraint(Sketcher.Constraint("Vertical", 0, 3, 4, 3))
sketch3.addConstraint(Sketcher.Constraint("Vertical", 1, 3, 5, 3))
sketch3.addConstraint(Sketcher.Constraint("Vertical", 2, 3, 6, 3))
sketch3.addConstraint(Sketcher.Constraint("Vertical", 3, 3, 7, 3))
sketch3.addConstraint(Sketcher.Constraint("Vertical", 4, 3, 8, 3))
sketch3.addConstraint(Sketcher.Constraint("Vertical", 5, 3, 9, 3))
sketch3.addConstraint(Sketcher.Constraint("Vertical", 6, 3, 10, 3))
sketch3.addConstraint(Sketcher.Constraint("Vertical", 7, 3, 11, 3))
sketch3.addConstraint(Sketcher.Constraint("Vertical", 8, 3, 12, 3))
sketch3.addConstraint(Sketcher.Constraint("Vertical", 9, 3, 13, 3))
sketch3.addConstraint(Sketcher.Constraint("Vertical", 10, 3, 14, 3))
sketch3.addConstraint(Sketcher.Constraint("Vertical", 11, 3, 15, 3))
sketch3.addConstraint(Sketcher.Constraint("Vertical", 12, 3, 16, 3))
sketch3.addConstraint(Sketcher.Constraint("Vertical", 13, 3, 17, 3))
sketch3.addConstraint(Sketcher.Constraint("Vertical", 14, 3, 18, 3))
sketch3.addConstraint(Sketcher.Constraint("Vertical", 15, 3, 19, 3))
sketch3.addConstraint(Sketcher.Constraint("Diameter", 0, 6.0))
sketch3.addConstraint(Sketcher.Constraint("DistanceX", 0, 3, 1, 3, 11.5))
sketch3.addConstraint(Sketcher.Constraint("DistanceX", 1, 3, 2, 3, 11.5))
sketch3.addConstraint(Sketcher.Constraint("DistanceX", 2, 3, 3, 3, 11.5))
sketch3.addConstraint(Sketcher.Constraint("DistanceY", 0, 3, 4, 3, 11.5))
sketch3.addConstraint(Sketcher.Constraint("DistanceY", 4, 3, 8, 3, 11.5))
sketch3.addConstraint(Sketcher.Constraint("DistanceY", 8, 3, 12, 3, 11.5))
sketch3.addConstraint(Sketcher.Constraint("DistanceY", 12, 3, 16, 3, 11.5))
sketch3.addConstraint(Sketcher.Constraint("DistanceX", 0, 3, -1, 1, 26.7864))
sketch3.addConstraint(Sketcher.Constraint("DistanceY", 0, 3, -1, 1, 26.8126))
pocket1 = doc.addObject("PartDesign::Pocket", "Pocket")
body.addObject(pocket1)
pocket1.Profile = sketch3
pocket1.Length = 1
pocket1.Reversed = True

doc.recompute()
